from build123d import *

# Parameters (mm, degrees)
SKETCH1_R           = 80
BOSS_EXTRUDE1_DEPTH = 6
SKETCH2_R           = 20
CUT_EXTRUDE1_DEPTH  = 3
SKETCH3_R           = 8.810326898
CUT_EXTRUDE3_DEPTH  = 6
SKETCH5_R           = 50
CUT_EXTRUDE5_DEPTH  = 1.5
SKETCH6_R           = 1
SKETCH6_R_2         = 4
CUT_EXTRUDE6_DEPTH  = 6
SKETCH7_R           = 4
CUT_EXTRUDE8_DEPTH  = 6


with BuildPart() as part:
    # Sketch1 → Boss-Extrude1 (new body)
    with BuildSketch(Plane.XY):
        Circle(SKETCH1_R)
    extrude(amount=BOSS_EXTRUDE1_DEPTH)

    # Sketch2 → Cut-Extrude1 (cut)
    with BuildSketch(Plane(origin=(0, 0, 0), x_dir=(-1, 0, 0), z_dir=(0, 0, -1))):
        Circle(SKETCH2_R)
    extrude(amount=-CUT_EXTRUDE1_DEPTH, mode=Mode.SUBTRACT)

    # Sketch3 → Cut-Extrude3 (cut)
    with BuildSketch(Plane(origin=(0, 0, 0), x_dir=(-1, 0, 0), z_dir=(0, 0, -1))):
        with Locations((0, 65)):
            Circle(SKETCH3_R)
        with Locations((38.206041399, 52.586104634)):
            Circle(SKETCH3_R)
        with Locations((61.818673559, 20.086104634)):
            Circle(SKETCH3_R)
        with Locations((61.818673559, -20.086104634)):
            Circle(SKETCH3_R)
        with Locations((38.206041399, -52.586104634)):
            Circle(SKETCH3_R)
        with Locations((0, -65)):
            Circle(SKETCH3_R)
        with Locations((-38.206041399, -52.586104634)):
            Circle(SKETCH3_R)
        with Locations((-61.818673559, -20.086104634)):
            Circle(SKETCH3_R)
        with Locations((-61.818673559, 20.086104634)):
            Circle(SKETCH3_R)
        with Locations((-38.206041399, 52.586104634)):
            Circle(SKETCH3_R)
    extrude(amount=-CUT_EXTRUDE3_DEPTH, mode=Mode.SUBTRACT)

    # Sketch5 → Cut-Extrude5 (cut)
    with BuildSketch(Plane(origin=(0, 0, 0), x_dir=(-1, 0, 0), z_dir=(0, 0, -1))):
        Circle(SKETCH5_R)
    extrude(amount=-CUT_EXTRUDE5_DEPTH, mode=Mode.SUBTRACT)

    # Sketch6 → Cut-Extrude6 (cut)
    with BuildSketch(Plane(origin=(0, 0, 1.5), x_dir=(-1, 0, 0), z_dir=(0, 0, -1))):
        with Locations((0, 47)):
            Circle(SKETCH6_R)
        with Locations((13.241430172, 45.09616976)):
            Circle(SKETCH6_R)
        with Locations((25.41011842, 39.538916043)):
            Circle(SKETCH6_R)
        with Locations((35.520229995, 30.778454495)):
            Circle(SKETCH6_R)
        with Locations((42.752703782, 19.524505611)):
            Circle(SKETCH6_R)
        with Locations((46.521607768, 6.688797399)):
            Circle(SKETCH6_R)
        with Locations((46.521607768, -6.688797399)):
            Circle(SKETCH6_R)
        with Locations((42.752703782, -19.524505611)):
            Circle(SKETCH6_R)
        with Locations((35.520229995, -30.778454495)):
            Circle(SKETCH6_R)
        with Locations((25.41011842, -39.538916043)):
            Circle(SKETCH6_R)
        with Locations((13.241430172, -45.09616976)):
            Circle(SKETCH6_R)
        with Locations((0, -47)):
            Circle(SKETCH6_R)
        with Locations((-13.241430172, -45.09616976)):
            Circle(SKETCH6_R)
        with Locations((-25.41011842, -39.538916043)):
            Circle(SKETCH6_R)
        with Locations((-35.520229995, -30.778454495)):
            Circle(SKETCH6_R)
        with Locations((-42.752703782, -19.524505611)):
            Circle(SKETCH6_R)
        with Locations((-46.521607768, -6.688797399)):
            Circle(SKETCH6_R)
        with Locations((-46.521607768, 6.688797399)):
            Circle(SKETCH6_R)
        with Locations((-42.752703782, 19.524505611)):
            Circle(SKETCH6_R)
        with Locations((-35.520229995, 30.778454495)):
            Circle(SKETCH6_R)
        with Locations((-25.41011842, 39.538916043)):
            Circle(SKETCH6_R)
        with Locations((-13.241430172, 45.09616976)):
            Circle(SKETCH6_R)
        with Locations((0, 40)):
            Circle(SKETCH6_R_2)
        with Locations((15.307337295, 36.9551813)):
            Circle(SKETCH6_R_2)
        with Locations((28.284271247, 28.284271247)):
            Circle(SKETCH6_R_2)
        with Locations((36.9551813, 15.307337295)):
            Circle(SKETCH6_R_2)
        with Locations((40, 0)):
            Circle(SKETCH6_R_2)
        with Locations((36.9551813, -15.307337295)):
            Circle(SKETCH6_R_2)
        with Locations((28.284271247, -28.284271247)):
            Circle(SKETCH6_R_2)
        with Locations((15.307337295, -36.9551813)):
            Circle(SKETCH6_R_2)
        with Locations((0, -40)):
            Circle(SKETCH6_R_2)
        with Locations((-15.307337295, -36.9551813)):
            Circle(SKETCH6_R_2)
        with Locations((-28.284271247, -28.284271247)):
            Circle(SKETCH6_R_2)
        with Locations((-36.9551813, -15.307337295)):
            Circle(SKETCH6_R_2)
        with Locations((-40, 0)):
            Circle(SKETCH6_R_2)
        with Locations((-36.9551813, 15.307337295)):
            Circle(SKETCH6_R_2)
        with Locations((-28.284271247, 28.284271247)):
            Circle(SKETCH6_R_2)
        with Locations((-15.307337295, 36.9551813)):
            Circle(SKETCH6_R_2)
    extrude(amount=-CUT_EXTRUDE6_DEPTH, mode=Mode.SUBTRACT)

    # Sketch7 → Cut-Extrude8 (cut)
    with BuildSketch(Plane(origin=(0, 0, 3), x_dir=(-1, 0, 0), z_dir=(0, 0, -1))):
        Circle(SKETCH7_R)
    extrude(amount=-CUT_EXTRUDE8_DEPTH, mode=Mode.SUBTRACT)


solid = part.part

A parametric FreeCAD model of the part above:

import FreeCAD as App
import Part
import Sketcher

doc = App.newDocument("Part")
body = doc.addObject("PartDesign::Body", "Body")

# Sketch on XY plane
sketch1 = body.newObject("Sketcher::SketchObject", "Sketch")
sketch1.AttachmentSupport = (doc.getObject("XY_Plane"), [""])
sketch1.MapMode = "FlatFace"
sketch1.addGeometry(Part.Circle(App.Vector(0, 0, 0), App.Vector(0, 0, 1), 80), False)
sketch1.addConstraint([
    Sketcher.Constraint("Coincident", 0, 3, -1, 1),
    Sketcher.Constraint("Diameter", 0, 160.0),
])
pad1 = body.newObject("PartDesign::Pad", "Pad")
pad1.Profile = sketch1
pad1.Length = 6

# Sketch on XY plane
sketch2 = body.newObject("Sketcher::SketchObject", "Sketch001")
sketch2.AttachmentSupport = (doc.getObject("XY_Plane"), [""])
sketch2.MapMode = "FlatFace"
sketch2.addGeometry(Part.Circle(App.Vector(0, 0, 0), App.Vector(0, 0, 1), 20), False)
sketch2.addConstraint([
    Sketcher.Constraint("Coincident", 0, 3, -1, 1),
    Sketcher.Constraint("Diameter", 0, 40.0),
])
pocket1 = body.newObject("PartDesign::Pocket", "Pocket")
pocket1.Profile = sketch2
pocket1.Length = 3
pocket1.Reversed = True

# Sketch on XY plane
sketch3 = body.newObject("Sketcher::SketchObject", "Sketch002")
sketch3.AttachmentSupport = (doc.getObject("XY_Plane"), [""])
sketch3.MapMode = "FlatFace"
sketch3.addGeometry([
    Part.Circle(App.Vector(0, 65, 0), App.Vector(0, 0, 1), 9),  # 0
    Part.Circle(App.Vector(-38, 53, 0), App.Vector(0, 0, 1), 9),  # 1
    Part.Circle(App.Vector(-62, 20, 0), App.Vector(0, 0, 1), 9),  # 2
    Part.Circle(App.Vector(-62, -20, 0), App.Vector(0, 0, 1), 9),  # 3
    Part.Circle(App.Vector(-38, -53, 0), App.Vector(0, 0, 1), 9),  # 4
    Part.Circle(App.Vector(0, -65, 0), App.Vector(0, 0, 1), 9),  # 5
    Part.Circle(App.Vector(38, -53, 0), App.Vector(0, 0, 1), 9),  # 6
    Part.Circle(App.Vector(62, -20, 0), App.Vector(0, 0, 1), 9),  # 7
    Part.Circle(App.Vector(62, 20, 0), App.Vector(0, 0, 1), 9),  # 8
    Part.Circle(App.Vector(38, 53, 0), App.Vector(0, 0, 1), 9),  # 9
], False)
sketch3.addConstraint([
    Sketcher.Constraint("Equal", 0, 1),
    Sketcher.Constraint("Equal", 1, 2),
    Sketcher.Constraint("Equal", 2, 3),
    Sketcher.Constraint("Equal", 3, 4),
    Sketcher.Constraint("Equal", 4, 5),
    Sketcher.Constraint("Equal", 5, 6),
    Sketcher.Constraint("Equal", 6, 7),
    Sketcher.Constraint("Equal", 7, 8),
    Sketcher.Constraint("Equal", 8, 9),
    Sketcher.Constraint("Symmetric", 0, 3, 5, 3, -1, 1),
    Sketcher.Constraint("Symmetric", 1, 3, 6, 3, -1, 1),
    Sketcher.Constraint("Symmetric", 2, 3, 7, 3, -1, 1),
    Sketcher.Constraint("Symmetric", 3, 3, 8, 3, -1, 1),
    Sketcher.Constraint("Symmetric", 4, 3, 9, 3, -1, 1),
    Sketcher.Constraint("Symmetric", 4, 3, 6, 3, -2),
    Sketcher.Constraint("Symmetric", 3, 3, 7, 3, -2),
    Sketcher.Constraint("PointOnObject", 0, 3, -2),
    Sketcher.Constraint("DistanceY", -1, 1, 0, 3, 65.0),
    Sketcher.Constraint("DistanceY", 2, 3, 1, 3, 32.5),
    Sketcher.Constraint("Diameter", 0, 17.620654),
    Sketcher.Constraint("DistanceX", 1, 3, -1, 1, 38.206041),
    Sketcher.Constraint("DistanceY", 3, 3, 2, 3, 40.172209),
    Sketcher.Constraint("DistanceX", 2, 3, -1, 1, 61.818674),
])
pocket2 = body.newObject("PartDesign::Pocket", "Pocket001")
pocket2.Profile = sketch3
pocket2.Length = 6
pocket2.Reversed = True

# Sketch on XY plane
sketch4 = body.newObject("Sketcher::SketchObject", "Sketch003")
sketch4.AttachmentSupport = (doc.getObject("XY_Plane"), [""])
sketch4.MapMode = "FlatFace"
sketch4.addGeometry(Part.Circle(App.Vector(0, 0, 0), App.Vector(0, 0, 1), 50), False)
sketch4.addConstraint([
    Sketcher.Constraint("Coincident", 0, 3, -1, 1),
    Sketcher.Constraint("Diameter", 0, 100.0),
])
pocket3 = body.newObject("PartDesign::Pocket", "Pocket002")
pocket3.Profile = sketch4
pocket3.Length = 1.5
pocket3.Reversed = True

# Sketch on XY plane
sketch5 = body.newObject("Sketcher::SketchObject", "Sketch004")
sketch5.AttachmentSupport = (doc.getObject("XY_Plane"), [""])
sketch5.MapMode = "FlatFace"
sketch5.AttachmentOffset = App.Placement(App.Vector(0, 0, 1.5), App.Rotation())
sketch5.addGeometry([
    Part.Circle(App.Vector(0, 47, 0), App.Vector(0, 0, 1), 1),  # 0
    Part.Circle(App.Vector(-13.2, 45.1, 0), App.Vector(0, 0, 1), 1),  # 1
    Part.Circle(App.Vector(-25.4, 39.5, 0), App.Vector(0, 0, 1), 1),  # 2
    Part.Circle(App.Vector(-35.5, 30.8, 0), App.Vector(0, 0, 1), 1),  # 3
    Part.Circle(App.Vector(-42.8, 19.5, 0), App.Vector(0, 0, 1), 1),  # 4
    Part.Circle(App.Vector(-46.5, 6.7, 0), App.Vector(0, 0, 1), 1),  # 5
    Part.Circle(App.Vector(-46.5, -6.7, 0), App.Vector(0, 0, 1), 1),  # 6
    Part.Circle(App.Vector(-42.8, -19.5, 0), App.Vector(0, 0, 1), 1),  # 7
    Part.Circle(App.Vector(-35.5, -30.8, 0), App.Vector(0, 0, 1), 1),  # 8
    Part.Circle(App.Vector(-25.4, -39.5, 0), App.Vector(0, 0, 1), 1),  # 9
    Part.Circle(App.Vector(-13.2, -45.1, 0), App.Vector(0, 0, 1), 1),  # 10
    Part.Circle(App.Vector(0, -47, 0), App.Vector(0, 0, 1), 1),  # 11
    Part.Circle(App.Vector(13.2, -45.1, 0), App.Vector(0, 0, 1), 1),  # 12
    Part.Circle(App.Vector(25.4, -39.5, 0), App.Vector(0, 0, 1), 1),  # 13
    Part.Circle(App.Vector(35.5, -30.8, 0), App.Vector(0, 0, 1), 1),  # 14
    Part.Circle(App.Vector(42.8, -19.5, 0), App.Vector(0, 0, 1), 1),  # 15
    Part.Circle(App.Vector(46.5, -6.7, 0), App.Vector(0, 0, 1), 1),  # 16
    Part.Circle(App.Vector(46.5, 6.7, 0), App.Vector(0, 0, 1), 1),  # 17
    Part.Circle(App.Vector(42.8, 19.5, 0), App.Vector(0, 0, 1), 1),  # 18
    Part.Circle(App.Vector(35.5, 30.8, 0), App.Vector(0, 0, 1), 1),  # 19
    Part.Circle(App.Vector(25.4, 39.5, 0), App.Vector(0, 0, 1), 1),  # 20
    Part.Circle(App.Vector(13.2, 45.1, 0), App.Vector(0, 0, 1), 1),  # 21
    Part.Circle(App.Vector(0, 40, 0), App.Vector(0, 0, 1), 4),  # 22
    Part.Circle(App.Vector(-15.3, 37, 0), App.Vector(0, 0, 1), 4),  # 23
    Part.Circle(App.Vector(-28.3, 28.3, 0), App.Vector(0, 0, 1), 4),  # 24
    Part.Circle(App.Vector(-37, 15.3, 0), App.Vector(0, 0, 1), 4),  # 25
    Part.Circle(App.Vector(-40, 0, 0), App.Vector(0, 0, 1), 4),  # 26
    Part.Circle(App.Vector(-37, -15.3, 0), App.Vector(0, 0, 1), 4),  # 27
    Part.Circle(App.Vector(-28.3, -28.3, 0), App.Vector(0, 0, 1), 4),  # 28
    Part.Circle(App.Vector(-15.3, -37, 0), App.Vector(0, 0, 1), 4),  # 29
    Part.Circle(App.Vector(0, -40, 0), App.Vector(0, 0, 1), 4),  # 30
    Part.Circle(App.Vector(15.3, -37, 0), App.Vector(0, 0, 1), 4),  # 31
    Part.Circle(App.Vector(28.3, -28.3, 0), App.Vector(0, 0, 1), 4),  # 32
    Part.Circle(App.Vector(37, -15.3, 0), App.Vector(0, 0, 1), 4),  # 33
    Part.Circle(App.Vector(40, 0, 0), App.Vector(0, 0, 1), 4),  # 34
    Part.Circle(App.Vector(37, 15.3, 0), App.Vector(0, 0, 1), 4),  # 35
    Part.Circle(App.Vector(28.3, 28.3, 0), App.Vector(0, 0, 1), 4),  # 36
    Part.Circle(App.Vector(15.3, 37, 0), App.Vector(0, 0, 1), 4),  # 37
], False)
sketch5.addConstraint([
    Sketcher.Constraint("Equal", 0, 1),
    Sketcher.Constraint("Equal", 1, 2),
    Sketcher.Constraint("Equal", 2, 3),
    Sketcher.Constraint("Equal", 3, 4),
    Sketcher.Constraint("Equal", 4, 5),
    Sketcher.Constraint("Equal", 5, 6),
    Sketcher.Constraint("Equal", 6, 7),
    Sketcher.Constraint("Equal", 7, 8),
    Sketcher.Constraint("Equal", 8, 9),
    Sketcher.Constraint("Equal", 9, 10),
    Sketcher.Constraint("Equal", 10, 11),
    Sketcher.Constraint("Equal", 11, 12),
    Sketcher.Constraint("Equal", 12, 13),
    Sketcher.Constraint("Equal", 13, 14),
    Sketcher.Constraint("Equal", 14, 15),
    Sketcher.Constraint("Equal", 15, 16),
    Sketcher.Constraint("Equal", 16, 17),
    Sketcher.Constraint("Equal", 17, 18),
    Sketcher.Constraint("Equal", 18, 19),
    Sketcher.Constraint("Equal", 19, 20),
    Sketcher.Constraint("Equal", 20, 21),
    Sketcher.Constraint("Equal", 22, 23),
    Sketcher.Constraint("Equal", 23, 24),
    Sketcher.Constraint("Equal", 24, 25),
    Sketcher.Constraint("Equal", 25, 26),
    Sketcher.Constraint("Equal", 26, 27),
    Sketcher.Constraint("Equal", 27, 28),
    Sketcher.Constraint("Equal", 28, 29),
    Sketcher.Constraint("Equal", 29, 30),
    Sketcher.Constraint("Equal", 30, 31),
    Sketcher.Constraint("Equal", 31, 32),
    Sketcher.Constraint("Equal", 32, 33),
    Sketcher.Constraint("Equal", 33, 34),
    Sketcher.Constraint("Equal", 34, 35),
    Sketcher.Constraint("Equal", 35, 36),
    Sketcher.Constraint("Equal", 36, 37),
    Sketcher.Constraint("Symmetric", 0, 3, 11, 3, -1, 1),
    Sketcher.Constraint("Symmetric", 1, 3, 12, 3, -1, 1),
    Sketcher.Constraint("Symmetric", 2, 3, 13, 3, -1, 1),
    Sketcher.Constraint("Symmetric", 3, 3, 14, 3, -1, 1),
    Sketcher.Constraint("Symmetric", 4, 3, 15, 3, -1, 1),
    Sketcher.Constraint("Symmetric", 5, 3, 16, 3, -1, 1),
    Sketcher.Constraint("Symmetric", 6, 3, 17, 3, -1, 1),
    Sketcher.Constraint("Symmetric", 7, 3, 18, 3, -1, 1),
    Sketcher.Constraint("Symmetric", 8, 3, 19, 3, -1, 1),
    Sketcher.Constraint("Symmetric", 9, 3, 20, 3, -1, 1),
    Sketcher.Constraint("Symmetric", 10, 3, 21, 3, -1, 1),
    Sketcher.Constraint("Symmetric", 22, 3, 30, 3, -1, 1),
    Sketcher.Constraint("Symmetric", 23, 3, 31, 3, -1, 1),
    Sketcher.Constraint("Symmetric", 24, 3, 32, 3, -1, 1),
    Sketcher.Constraint("Symmetric", 25, 3, 33, 3, -1, 1),
    Sketcher.Constraint("Symmetric", 26, 3, 34, 3, -1, 1),
    Sketcher.Constraint("Symmetric", 27, 3, 35, 3, -1, 1),
    Sketcher.Constraint("Symmetric", 28, 3, 36, 3, -1, 1),
    Sketcher.Constraint("Symmetric", 29, 3, 37, 3, -1, 1),
    Sketcher.Constraint("Symmetric", 10, 3, 12, 3, -2),
    Sketcher.Constraint("Symmetric", 9, 3, 13, 3, -2),
    Sketcher.Constraint("Symmetric", 8, 3, 14, 3, -2),
    Sketcher.Constraint("Symmetric", 7, 3, 15, 3, -2),
    Sketcher.Constraint("Symmetric", 6, 3, 16, 3, -2),
    Sketcher.Constraint("Symmetric", 29, 3, 31, 3, -2),
    Sketcher.Constraint("Symmetric", 28, 3, 32, 3, -2),
    Sketcher.Constraint("Symmetric", 27, 3, 33, 3, -2),
    Sketcher.Constraint("PointOnObject", 0, 3, -2),
    Sketcher.Constraint("PointOnObject", 22, 3, -2),
    Sketcher.Constraint("PointOnObject", 26, 3, -1),
    Sketcher.Constraint("Diameter", 0, 2.0),
    Sketcher.Constraint("Diameter", 22, 8.0),
    Sketcher.Constraint("DistanceY", -1, 1, 0, 3, 47.0),
    Sketcher.Constraint("DistanceY", -1, 1, 22, 3, 40.0),
    Sketcher.Constraint("DistanceX", 26, 3, -1, 1, 40.0),
    Sketcher.Constraint("DistanceX", 3, 3, 1, 3, 22.2788),
    Sketcher.Constraint("DistanceY", 24, 3, 1, 3, 16.811899),
    Sketcher.Constraint("DistanceX", 1, 3, -1, 1, 13.24143),
    Sketcher.Constraint("DistanceY", -1, 1, 1, 3, 45.09617),
    Sketcher.Constraint("DistanceX", 2, 3, -1, 1, 25.410118),
    Sketcher.Constraint("DistanceY", -1, 1, 23, 3, 36.955181),
    Sketcher.Constraint("DistanceX", 24, 3, -1, 1, 28.284271),
    Sketcher.Constraint("DistanceX", 25, 3, -1, 1, 36.955181),
    Sketcher.Constraint("DistanceY", 3, 3, 2, 3, 8.760462),
    Sketcher.Constraint("DistanceY", 4, 3, 3, 3, 11.253949),
    Sketcher.Constraint("DistanceY", 5, 3, 4, 3, 12.835708),
    Sketcher.Constraint("DistanceX", 5, 3, 2, 3, 21.111489),
    Sketcher.Constraint("DistanceY", 6, 3, 3, 3, 37.467252),
    Sketcher.Constraint("DistanceX", 2, 3, 23, 3, 10.102781),
    Sketcher.Constraint("DistanceY", 25, 3, 4, 3, 4.217168),
    Sketcher.Constraint("DistanceX", 4, 3, -1, 1, 42.752704),
])
pocket4 = body.newObject("PartDesign::Pocket", "Pocket003")
pocket4.Profile = sketch5
pocket4.Length = 6
pocket4.Reversed = True

# Sketch on XY plane
sketch6 = body.newObject("Sketcher::SketchObject", "Sketch005")
sketch6.AttachmentSupport = (doc.getObject("XY_Plane"), [""])
sketch6.MapMode = "FlatFace"
sketch6.AttachmentOffset = App.Placement(App.Vector(0, 0, 3), App.Rotation())
sketch6.addGeometry(Part.Circle(App.Vector(0, 0, 0), App.Vector(0, 0, 1), 4), False)
sketch6.addConstraint([
    Sketcher.Constraint("Coincident", 0, 3, -1, 1),
    Sketcher.Constraint("Diameter", 0, 8.0),
])
pocket5 = body.newObject("PartDesign::Pocket", "Pocket004")
pocket5.Profile = sketch6
pocket5.Length = 6
pocket5.Reversed = True

doc.recompute()
